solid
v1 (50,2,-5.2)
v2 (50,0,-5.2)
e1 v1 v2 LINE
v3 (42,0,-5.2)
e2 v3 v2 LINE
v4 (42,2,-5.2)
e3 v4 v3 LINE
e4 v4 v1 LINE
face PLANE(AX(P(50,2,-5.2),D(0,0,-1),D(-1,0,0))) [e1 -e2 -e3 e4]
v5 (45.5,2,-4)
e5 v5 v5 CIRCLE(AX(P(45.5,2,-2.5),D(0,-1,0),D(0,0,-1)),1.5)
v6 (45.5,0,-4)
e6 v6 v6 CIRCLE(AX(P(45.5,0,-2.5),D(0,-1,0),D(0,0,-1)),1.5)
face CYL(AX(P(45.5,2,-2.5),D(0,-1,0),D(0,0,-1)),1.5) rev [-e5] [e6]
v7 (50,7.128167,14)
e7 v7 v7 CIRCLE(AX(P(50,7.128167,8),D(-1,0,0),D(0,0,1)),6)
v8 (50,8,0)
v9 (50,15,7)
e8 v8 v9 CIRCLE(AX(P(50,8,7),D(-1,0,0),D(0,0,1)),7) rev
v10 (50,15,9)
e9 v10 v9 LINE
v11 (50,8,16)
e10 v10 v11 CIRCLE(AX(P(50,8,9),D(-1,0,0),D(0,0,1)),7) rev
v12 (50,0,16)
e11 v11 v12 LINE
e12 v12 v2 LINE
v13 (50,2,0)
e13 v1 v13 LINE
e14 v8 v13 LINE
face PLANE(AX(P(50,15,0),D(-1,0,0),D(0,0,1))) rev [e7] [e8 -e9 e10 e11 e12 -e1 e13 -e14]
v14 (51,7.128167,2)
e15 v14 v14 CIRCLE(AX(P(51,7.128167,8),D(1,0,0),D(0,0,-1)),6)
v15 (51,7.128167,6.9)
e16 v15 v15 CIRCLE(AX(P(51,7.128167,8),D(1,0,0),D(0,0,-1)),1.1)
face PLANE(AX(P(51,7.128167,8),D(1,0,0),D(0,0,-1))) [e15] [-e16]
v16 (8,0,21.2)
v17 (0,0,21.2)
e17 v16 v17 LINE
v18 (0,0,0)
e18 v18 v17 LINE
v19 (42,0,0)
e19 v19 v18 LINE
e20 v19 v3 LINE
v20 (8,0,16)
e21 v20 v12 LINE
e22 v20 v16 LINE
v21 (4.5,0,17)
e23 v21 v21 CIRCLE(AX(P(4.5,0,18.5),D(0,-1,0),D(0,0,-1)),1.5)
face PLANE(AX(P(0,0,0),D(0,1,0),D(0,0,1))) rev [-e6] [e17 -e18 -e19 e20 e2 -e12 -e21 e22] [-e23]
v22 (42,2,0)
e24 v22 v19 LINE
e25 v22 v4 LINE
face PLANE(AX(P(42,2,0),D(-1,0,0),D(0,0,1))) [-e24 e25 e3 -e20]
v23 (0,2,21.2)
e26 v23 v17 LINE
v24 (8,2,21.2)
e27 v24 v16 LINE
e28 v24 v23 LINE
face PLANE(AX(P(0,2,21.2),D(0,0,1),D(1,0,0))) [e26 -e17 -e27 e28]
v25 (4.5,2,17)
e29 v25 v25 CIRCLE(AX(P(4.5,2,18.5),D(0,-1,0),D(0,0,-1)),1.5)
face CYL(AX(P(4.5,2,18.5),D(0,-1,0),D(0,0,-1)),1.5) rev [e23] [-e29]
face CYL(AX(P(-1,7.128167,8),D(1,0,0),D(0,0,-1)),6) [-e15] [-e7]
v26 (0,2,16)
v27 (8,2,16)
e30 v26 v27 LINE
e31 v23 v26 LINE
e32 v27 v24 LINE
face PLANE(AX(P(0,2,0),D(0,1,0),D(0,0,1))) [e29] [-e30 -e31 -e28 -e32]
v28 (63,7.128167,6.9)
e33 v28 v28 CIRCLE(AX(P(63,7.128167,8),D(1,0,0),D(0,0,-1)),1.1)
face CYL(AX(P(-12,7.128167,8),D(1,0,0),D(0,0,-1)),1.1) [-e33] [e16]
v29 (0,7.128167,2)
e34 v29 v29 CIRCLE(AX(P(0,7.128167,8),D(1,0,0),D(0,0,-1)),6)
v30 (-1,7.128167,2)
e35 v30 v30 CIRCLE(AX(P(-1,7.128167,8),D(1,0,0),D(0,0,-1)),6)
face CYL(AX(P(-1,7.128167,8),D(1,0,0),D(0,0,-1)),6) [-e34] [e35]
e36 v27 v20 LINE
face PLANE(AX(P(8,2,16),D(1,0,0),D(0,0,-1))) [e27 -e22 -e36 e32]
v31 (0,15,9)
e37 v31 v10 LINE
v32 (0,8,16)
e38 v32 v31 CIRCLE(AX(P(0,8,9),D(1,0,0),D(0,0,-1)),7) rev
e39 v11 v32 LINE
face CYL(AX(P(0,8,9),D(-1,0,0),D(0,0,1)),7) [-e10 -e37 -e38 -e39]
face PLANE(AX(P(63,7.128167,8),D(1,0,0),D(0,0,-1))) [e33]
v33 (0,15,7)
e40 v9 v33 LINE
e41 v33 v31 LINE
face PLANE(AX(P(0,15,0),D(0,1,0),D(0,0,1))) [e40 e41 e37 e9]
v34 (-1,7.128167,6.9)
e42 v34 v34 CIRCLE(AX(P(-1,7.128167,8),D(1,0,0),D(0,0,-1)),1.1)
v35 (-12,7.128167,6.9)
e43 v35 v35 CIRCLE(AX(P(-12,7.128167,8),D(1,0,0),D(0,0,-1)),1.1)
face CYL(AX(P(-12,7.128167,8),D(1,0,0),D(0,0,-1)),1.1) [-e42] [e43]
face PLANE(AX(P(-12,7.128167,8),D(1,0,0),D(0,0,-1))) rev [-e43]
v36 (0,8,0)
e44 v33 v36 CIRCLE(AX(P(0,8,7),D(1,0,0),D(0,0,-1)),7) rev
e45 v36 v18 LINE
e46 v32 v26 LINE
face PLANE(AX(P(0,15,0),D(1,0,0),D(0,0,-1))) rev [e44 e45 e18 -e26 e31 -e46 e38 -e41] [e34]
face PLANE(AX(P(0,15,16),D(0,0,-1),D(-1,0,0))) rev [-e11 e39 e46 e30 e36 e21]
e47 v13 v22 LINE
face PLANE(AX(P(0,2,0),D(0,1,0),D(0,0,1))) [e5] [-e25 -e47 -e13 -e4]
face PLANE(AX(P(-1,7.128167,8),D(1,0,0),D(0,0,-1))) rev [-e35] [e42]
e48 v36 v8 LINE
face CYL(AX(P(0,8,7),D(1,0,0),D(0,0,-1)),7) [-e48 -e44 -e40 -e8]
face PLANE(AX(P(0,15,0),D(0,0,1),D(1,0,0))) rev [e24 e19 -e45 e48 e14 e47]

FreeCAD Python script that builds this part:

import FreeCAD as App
import Part
import Sketcher


def edges_at(feature, points):
    """Names of the edges that pass closest to the given points."""
    edges = feature.Shape.Edges
    near = lambda p: min(range(len(edges)), key=lambda i: edges[i].distToShape(Part.Vertex(*p))[0])
    return sorted({f"Edge{near(p) + 1}" for p in points})


def add_polygon(sketch, points):
    """Adds a closed chain of lines whose ends are joined by coincident constraints."""
    first, n = sketch.GeometryCount, len(points)
    for a, b in zip(points, points[1:] + points[:1]):
        sketch.addGeometry(Part.LineSegment(App.Vector(*a, 0), App.Vector(*b, 0)), False)
    for i in range(n):
        sketch.addConstraint(Sketcher.Constraint("Coincident", first + i, 2, first + (i + 1) % n, 1))

doc = App.newDocument("Part")
body = doc.addObject("PartDesign::Body", "Body")

sketch1 = body.newObject("Sketcher::SketchObject", "Sketch")
sketch1.AttachmentSupport = (doc.getObject("XZ_Plane"), [""])
sketch1.MapMode = "FlatFace"
add_polygon(sketch1, [(0, 0), (0, 16), (50, 16), (50, 0)])
sketch1.addConstraint([
    Sketcher.Constraint("Vertical", 0),
    Sketcher.Constraint("Horizontal", 1),
    Sketcher.Constraint("Vertical", 2),
    Sketcher.Constraint("Horizontal", 3),
    Sketcher.Constraint("Coincident", 3, 2, -1, 1),
    Sketcher.Constraint("DistanceX", 1, 1, 1, 2, 50.0),
    Sketcher.Constraint("DistanceY", 0, 1, 0, 2, 16.0),
])
pad1 = body.newObject("PartDesign::Pad", "Pad")
pad1.Profile = sketch1
pad1.Length = 15
pad1.Reversed = True

sketch2 = body.newObject("Sketcher::SketchObject", "Sketch001")
sketch2.AttachmentSupport = (doc.getObject("XZ_Plane"), [""])
sketch2.MapMode = "FlatFace"
add_polygon(sketch2, [(0, 21.2), (0, 16), (8, 16), (8, 21.2)])
sketch2.addGeometry(Part.Circle(App.Vector(4.5, 18.5, 0), App.Vector(0, 0, 1), 1.5), False)
add_polygon(sketch2, [(42, 0), (42, -5.2), (50, -5.2), (50, 0)])
sketch2.addGeometry(Part.Circle(App.Vector(45.5, -2.5, 0), App.Vector(0, 0, 1), 1.5), False)
sketch2.addConstraint([
    Sketcher.Constraint("Vertical", 0),
    Sketcher.Constraint("Horizontal", 1),
    Sketcher.Constraint("Vertical", 2),
    Sketcher.Constraint("Horizontal", 3),
    Sketcher.Constraint("Vertical", 5),
    Sketcher.Constraint("Horizontal", 6),
    Sketcher.Constraint("Vertical", 7),
    Sketcher.Constraint("Horizontal", 8),
    Sketcher.Constraint("Equal", 4, 9),
    Sketcher.Constraint("PointOnObject", 0, 2, -2),
    Sketcher.Constraint("PointOnObject", 7, 2, -1),
    Sketcher.Constraint("Equal", 3, 6),
    Sketcher.Constraint("Equal", 2, 5),
    Sketcher.Constraint("Diameter", 4, 3.0),
    Sketcher.Constraint("DistanceX", 1, 1, 1, 2, 8.0),
    Sketcher.Constraint("DistanceY", 0, 2, 0, 1, 5.2),
    Sketcher.Constraint("DistanceY", -1, 1, 0, 2, 16.0),
    Sketcher.Constraint("DistanceX", -1, 1, 5, 2, 42.0),
    Sketcher.Constraint("DistanceX", 4, 3, 9, 3, 41.0),
    Sketcher.Constraint("DistanceY", 9, 3, 4, 3, 21.0),
    Sketcher.Constraint("DistanceX", -1, 1, 4, 3, 4.5),
    Sketcher.Constraint("DistanceY", -1, 1, 4, 3, 18.5),
])
pad2 = body.newObject("PartDesign::Pad", "Pad001")
pad2.Profile = sketch2
pad2.Length = 2
pad2.Reversed = True
doc.recompute()

fillet = body.newObject("PartDesign::Fillet", "Fillet")
fillet.Base = (pad2, edges_at(pad2, [(25, 15, 0), (25, 15, 16)]))
fillet.Radius = 7

sketch3 = body.newObject("Sketcher::SketchObject", "Sketch002")
sketch3.AttachmentSupport = (doc.getObject("YZ_Plane"), [""])
sketch3.MapMode = "FlatFace"
sketch3.AttachmentOffset = App.Placement(App.Vector(0, 0, 50), App.Rotation())
sketch3.addGeometry(Part.Circle(App.Vector(7, 8, 0), App.Vector(0, 0, 1), 6), False)
sketch3.addConstraint([
    Sketcher.Constraint("Diameter", 0, 12.0),
    Sketcher.Constraint("DistanceY", -1, 1, 0, 3, 8.0),
    Sketcher.Constraint("DistanceX", -1, 1, 0, 3, 7.128167),
])
pad3 = body.newObject("PartDesign::Pad", "Pad002")
pad3.Profile = sketch3
pad3.Type = "TwoLengths"
pad3.Length = 1
pad3.Length2 = 51

sketch4 = body.newObject("Sketcher::SketchObject", "Sketch003")
sketch4.AttachmentSupport = (doc.getObject("YZ_Plane"), [""])
sketch4.MapMode = "FlatFace"
sketch4.AttachmentOffset = App.Placement(App.Vector(0, 0, 51), App.Rotation())
sketch4.addGeometry(Part.Circle(App.Vector(7.1, 8, 0), App.Vector(0, 0, 1), 1.1), False)
sketch4.addConstraint([
    Sketcher.Constraint("Diameter", 0, 2.2),
    Sketcher.Constraint("DistanceY", -1, 1, 0, 3, 8.0),
    Sketcher.Constraint("DistanceX", -1, 1, 0, 3, 7.128167),
])
pad4 = body.newObject("PartDesign::Pad", "Pad003")
pad4.Profile = sketch4
pad4.Type = "TwoLengths"
pad4.Length = 12
pad4.Length2 = 63

doc.recompute()
